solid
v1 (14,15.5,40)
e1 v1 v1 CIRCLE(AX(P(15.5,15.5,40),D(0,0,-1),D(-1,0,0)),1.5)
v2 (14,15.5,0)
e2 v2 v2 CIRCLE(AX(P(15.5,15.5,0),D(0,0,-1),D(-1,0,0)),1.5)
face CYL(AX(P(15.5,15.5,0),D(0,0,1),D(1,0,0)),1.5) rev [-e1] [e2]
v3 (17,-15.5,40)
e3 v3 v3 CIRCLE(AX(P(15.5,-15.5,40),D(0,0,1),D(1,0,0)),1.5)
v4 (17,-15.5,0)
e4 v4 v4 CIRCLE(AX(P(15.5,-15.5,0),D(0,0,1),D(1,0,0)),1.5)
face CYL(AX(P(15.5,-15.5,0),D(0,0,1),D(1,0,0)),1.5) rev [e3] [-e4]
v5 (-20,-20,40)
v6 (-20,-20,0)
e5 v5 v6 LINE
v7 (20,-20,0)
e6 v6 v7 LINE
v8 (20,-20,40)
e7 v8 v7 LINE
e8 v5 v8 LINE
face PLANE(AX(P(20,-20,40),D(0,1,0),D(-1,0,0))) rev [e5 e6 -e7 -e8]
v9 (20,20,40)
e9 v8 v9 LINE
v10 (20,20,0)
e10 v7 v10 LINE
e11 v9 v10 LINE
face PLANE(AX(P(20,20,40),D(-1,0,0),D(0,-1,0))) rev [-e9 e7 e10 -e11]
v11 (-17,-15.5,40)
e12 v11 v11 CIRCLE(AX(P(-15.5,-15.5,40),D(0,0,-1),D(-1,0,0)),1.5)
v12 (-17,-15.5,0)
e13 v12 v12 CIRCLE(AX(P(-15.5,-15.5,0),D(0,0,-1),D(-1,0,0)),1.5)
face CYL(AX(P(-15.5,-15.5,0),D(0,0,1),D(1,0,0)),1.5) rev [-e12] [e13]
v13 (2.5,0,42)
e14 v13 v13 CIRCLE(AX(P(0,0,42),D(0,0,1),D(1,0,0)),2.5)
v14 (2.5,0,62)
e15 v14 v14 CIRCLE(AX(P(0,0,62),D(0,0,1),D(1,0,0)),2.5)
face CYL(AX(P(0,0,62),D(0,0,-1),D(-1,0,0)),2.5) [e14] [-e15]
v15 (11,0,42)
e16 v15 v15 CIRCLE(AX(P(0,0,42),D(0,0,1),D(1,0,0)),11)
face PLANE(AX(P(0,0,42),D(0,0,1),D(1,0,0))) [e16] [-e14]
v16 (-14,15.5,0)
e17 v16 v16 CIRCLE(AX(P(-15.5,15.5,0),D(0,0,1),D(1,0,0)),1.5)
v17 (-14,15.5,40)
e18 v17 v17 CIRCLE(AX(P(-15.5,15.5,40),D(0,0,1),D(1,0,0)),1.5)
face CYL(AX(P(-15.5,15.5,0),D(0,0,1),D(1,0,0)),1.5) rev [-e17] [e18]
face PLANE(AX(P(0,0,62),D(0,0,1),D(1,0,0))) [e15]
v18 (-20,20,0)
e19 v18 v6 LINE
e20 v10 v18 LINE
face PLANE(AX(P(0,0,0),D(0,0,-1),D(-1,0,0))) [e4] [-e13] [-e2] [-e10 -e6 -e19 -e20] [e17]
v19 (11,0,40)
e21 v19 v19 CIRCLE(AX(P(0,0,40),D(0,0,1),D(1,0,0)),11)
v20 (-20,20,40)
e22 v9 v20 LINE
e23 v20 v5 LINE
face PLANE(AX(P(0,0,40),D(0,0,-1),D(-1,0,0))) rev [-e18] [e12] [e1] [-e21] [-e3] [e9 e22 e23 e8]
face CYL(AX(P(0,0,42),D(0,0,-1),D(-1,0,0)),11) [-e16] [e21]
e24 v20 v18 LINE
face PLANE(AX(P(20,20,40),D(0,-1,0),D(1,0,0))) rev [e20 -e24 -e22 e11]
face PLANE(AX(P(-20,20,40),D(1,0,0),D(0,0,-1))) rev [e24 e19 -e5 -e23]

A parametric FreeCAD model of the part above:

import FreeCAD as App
import Part
import Sketcher

V = App.Vector
Q = App.Units.Quantity

doc = App.newDocument("Part")
body = doc.addObject("PartDesign::Body", "Body")

# Sketch on XY plane
sketch1 = body.newObject("Sketcher::SketchObject", "Sketch")
sketch1.AttachmentSupport = (doc.getObject("XY_Plane"), [""])
sketch1.MapMode = "FlatFace"
sketch1.addGeometry([
    Part.LineSegment(V(-20, 20, 0), V(-20, -20, 0)),
    Part.LineSegment(V(-20, -20, 0), V(20, -20, 0)),
    Part.LineSegment(V(20, -20, 0), V(20, 20, 0)),
    Part.LineSegment(V(20, 20, 0), V(-20, 20, 0)),
], False)
sketch1.addConstraint([
    Sketcher.Constraint("Coincident", 0, 2, 1, 1),
    Sketcher.Constraint("Coincident", 1, 2, 2, 1),
    Sketcher.Constraint("Coincident", 2, 2, 3, 1),
    Sketcher.Constraint("Coincident", 3, 2, 0, 1),
    Sketcher.Constraint("Vertical", 0),
    Sketcher.Constraint("Horizontal", 1),
    Sketcher.Constraint("Vertical", 2),
    Sketcher.Constraint("Horizontal", 3),
    Sketcher.Constraint("Symmetric", 0, 2, 2, 2, -1, 1),
    Sketcher.Constraint("Equal", 3, 0),
    Sketcher.Constraint("DistanceX", 1, 1, 1, 2, Q("40 mm")),
])
pad1 = body.newObject("PartDesign::Pad", "Pad")
pad1.Profile = sketch1
pad1.Length = 40

# Sketch on XY plane
sketch2 = body.newObject("Sketcher::SketchObject", "Sketch001")
sketch2.AttachmentSupport = (doc.getObject("XY_Plane"), [""])
sketch2.MapMode = "FlatFace"
sketch2.AttachmentOffset = App.Placement(V(0, 0, 40), App.Rotation())
sketch2.addGeometry(Part.Circle(V(0, 0, 0), V(0, 0, 1), 11), False)
sketch2.addConstraint([
    Sketcher.Constraint("Coincident", 0, 3, -1, 1),
    Sketcher.Constraint("Diameter", 0, Q("22 mm")),
])
pad2 = body.newObject("PartDesign::Pad", "Pad001")
pad2.Profile = sketch2
pad2.Length = 2

# Sketch on XY plane
sketch3 = body.newObject("Sketcher::SketchObject", "Sketch002")
sketch3.AttachmentSupport = (doc.getObject("XY_Plane"), [""])
sketch3.MapMode = "FlatFace"
sketch3.AttachmentOffset = App.Placement(V(0, 0, 42), App.Rotation())
sketch3.addGeometry(Part.Circle(V(0, 0, 0), V(0, 0, 1), 2.5), False)
sketch3.addConstraint([
    Sketcher.Constraint("Coincident", 0, 3, -1, 1),
    Sketcher.Constraint("Diameter", 0, Q("5 mm")),
])
pad3 = body.newObject("PartDesign::Pad", "Pad002")
pad3.Profile = sketch3
pad3.Length = 20

# Sketch on XY plane
sketch4 = body.newObject("Sketcher::SketchObject", "Sketch003")
sketch4.AttachmentSupport = (doc.getObject("XY_Plane"), [""])
sketch4.MapMode = "FlatFace"
sketch4.AttachmentOffset = App.Placement(V(0, 0, 40), App.Rotation())
sketch4.addGeometry([
    Part.Circle(V(-15.5, 15.5, 0), V(0, 0, 1), 1.5),
    Part.Circle(V(-15.5, -15.5, 0), V(0, 0, 1), 1.5),
    Part.Circle(V(15.5, 15.5, 0), V(0, 0, 1), 1.5),
], False)
sketch4.addConstraint([
    Sketcher.Constraint("Equal", 0, 1),
    Sketcher.Constraint("Equal", 1, 2),
    Sketcher.Constraint("Symmetric", 1, 3, 2, 3, -1, 1),
    Sketcher.Constraint("Symmetric", 0, 3, 2, 3, -2),
    Sketcher.Constraint("Diameter", 0, Q("3 mm")),
    Sketcher.Constraint("DistanceY", 1, 3, 0, 3, Q("31 mm")),
    Sketcher.Constraint("DistanceX", 0, 3, 2, 3, Q("31 mm")),
])
pocket1 = body.newObject("PartDesign::Pocket", "Pocket")
pocket1.Profile = sketch4
pocket1.Type = "ThroughAll"

# Sketch on XY plane
sketch5 = body.newObject("Sketcher::SketchObject", "Sketch004")
sketch5.AttachmentSupport = (doc.getObject("XY_Plane"), [""])
sketch5.MapMode = "FlatFace"
sketch5.AttachmentOffset = App.Placement(V(0, 0, 40), App.Rotation())
sketch5.addGeometry([
    Part.Circle(V(-15.5, 15.5, 0), V(0, 0, 1), 1.5),
    Part.Circle(V(-15.5, -15.5, 0), V(0, 0, 1), 1.5),
    Part.Circle(V(15.5, -15.5, 0), V(0, 0, 1), 1.5),
    Part.Circle(V(15.5, 15.5, 0), V(0, 0, 1), 1.5),
], False)
sketch5.addConstraint([
    Sketcher.Constraint("Equal", 0, 1),
    Sketcher.Constraint("Equal", 1, 2),
    Sketcher.Constraint("Equal", 2, 3),
    Sketcher.Constraint("Symmetric", 0, 3, 2, 3, -1, 1),
    Sketcher.Constraint("Symmetric", 1, 3, 3, 3, -1, 1),
    Sketcher.Constraint("Symmetric", 1, 3, 2, 3, -2),
    Sketcher.Constraint("Diameter", 0, Q("3 mm")),
    Sketcher.Constraint("DistanceY", 1, 3, 0, 3, Q("31 mm")),
    Sketcher.Constraint("DistanceX", 1, 3, 2, 3, Q("31 mm")),
])
pocket2 = body.newObject("PartDesign::Pocket", "Pocket001")
pocket2.Profile = sketch5
pocket2.Type = "ThroughAll"

doc.recompute()
